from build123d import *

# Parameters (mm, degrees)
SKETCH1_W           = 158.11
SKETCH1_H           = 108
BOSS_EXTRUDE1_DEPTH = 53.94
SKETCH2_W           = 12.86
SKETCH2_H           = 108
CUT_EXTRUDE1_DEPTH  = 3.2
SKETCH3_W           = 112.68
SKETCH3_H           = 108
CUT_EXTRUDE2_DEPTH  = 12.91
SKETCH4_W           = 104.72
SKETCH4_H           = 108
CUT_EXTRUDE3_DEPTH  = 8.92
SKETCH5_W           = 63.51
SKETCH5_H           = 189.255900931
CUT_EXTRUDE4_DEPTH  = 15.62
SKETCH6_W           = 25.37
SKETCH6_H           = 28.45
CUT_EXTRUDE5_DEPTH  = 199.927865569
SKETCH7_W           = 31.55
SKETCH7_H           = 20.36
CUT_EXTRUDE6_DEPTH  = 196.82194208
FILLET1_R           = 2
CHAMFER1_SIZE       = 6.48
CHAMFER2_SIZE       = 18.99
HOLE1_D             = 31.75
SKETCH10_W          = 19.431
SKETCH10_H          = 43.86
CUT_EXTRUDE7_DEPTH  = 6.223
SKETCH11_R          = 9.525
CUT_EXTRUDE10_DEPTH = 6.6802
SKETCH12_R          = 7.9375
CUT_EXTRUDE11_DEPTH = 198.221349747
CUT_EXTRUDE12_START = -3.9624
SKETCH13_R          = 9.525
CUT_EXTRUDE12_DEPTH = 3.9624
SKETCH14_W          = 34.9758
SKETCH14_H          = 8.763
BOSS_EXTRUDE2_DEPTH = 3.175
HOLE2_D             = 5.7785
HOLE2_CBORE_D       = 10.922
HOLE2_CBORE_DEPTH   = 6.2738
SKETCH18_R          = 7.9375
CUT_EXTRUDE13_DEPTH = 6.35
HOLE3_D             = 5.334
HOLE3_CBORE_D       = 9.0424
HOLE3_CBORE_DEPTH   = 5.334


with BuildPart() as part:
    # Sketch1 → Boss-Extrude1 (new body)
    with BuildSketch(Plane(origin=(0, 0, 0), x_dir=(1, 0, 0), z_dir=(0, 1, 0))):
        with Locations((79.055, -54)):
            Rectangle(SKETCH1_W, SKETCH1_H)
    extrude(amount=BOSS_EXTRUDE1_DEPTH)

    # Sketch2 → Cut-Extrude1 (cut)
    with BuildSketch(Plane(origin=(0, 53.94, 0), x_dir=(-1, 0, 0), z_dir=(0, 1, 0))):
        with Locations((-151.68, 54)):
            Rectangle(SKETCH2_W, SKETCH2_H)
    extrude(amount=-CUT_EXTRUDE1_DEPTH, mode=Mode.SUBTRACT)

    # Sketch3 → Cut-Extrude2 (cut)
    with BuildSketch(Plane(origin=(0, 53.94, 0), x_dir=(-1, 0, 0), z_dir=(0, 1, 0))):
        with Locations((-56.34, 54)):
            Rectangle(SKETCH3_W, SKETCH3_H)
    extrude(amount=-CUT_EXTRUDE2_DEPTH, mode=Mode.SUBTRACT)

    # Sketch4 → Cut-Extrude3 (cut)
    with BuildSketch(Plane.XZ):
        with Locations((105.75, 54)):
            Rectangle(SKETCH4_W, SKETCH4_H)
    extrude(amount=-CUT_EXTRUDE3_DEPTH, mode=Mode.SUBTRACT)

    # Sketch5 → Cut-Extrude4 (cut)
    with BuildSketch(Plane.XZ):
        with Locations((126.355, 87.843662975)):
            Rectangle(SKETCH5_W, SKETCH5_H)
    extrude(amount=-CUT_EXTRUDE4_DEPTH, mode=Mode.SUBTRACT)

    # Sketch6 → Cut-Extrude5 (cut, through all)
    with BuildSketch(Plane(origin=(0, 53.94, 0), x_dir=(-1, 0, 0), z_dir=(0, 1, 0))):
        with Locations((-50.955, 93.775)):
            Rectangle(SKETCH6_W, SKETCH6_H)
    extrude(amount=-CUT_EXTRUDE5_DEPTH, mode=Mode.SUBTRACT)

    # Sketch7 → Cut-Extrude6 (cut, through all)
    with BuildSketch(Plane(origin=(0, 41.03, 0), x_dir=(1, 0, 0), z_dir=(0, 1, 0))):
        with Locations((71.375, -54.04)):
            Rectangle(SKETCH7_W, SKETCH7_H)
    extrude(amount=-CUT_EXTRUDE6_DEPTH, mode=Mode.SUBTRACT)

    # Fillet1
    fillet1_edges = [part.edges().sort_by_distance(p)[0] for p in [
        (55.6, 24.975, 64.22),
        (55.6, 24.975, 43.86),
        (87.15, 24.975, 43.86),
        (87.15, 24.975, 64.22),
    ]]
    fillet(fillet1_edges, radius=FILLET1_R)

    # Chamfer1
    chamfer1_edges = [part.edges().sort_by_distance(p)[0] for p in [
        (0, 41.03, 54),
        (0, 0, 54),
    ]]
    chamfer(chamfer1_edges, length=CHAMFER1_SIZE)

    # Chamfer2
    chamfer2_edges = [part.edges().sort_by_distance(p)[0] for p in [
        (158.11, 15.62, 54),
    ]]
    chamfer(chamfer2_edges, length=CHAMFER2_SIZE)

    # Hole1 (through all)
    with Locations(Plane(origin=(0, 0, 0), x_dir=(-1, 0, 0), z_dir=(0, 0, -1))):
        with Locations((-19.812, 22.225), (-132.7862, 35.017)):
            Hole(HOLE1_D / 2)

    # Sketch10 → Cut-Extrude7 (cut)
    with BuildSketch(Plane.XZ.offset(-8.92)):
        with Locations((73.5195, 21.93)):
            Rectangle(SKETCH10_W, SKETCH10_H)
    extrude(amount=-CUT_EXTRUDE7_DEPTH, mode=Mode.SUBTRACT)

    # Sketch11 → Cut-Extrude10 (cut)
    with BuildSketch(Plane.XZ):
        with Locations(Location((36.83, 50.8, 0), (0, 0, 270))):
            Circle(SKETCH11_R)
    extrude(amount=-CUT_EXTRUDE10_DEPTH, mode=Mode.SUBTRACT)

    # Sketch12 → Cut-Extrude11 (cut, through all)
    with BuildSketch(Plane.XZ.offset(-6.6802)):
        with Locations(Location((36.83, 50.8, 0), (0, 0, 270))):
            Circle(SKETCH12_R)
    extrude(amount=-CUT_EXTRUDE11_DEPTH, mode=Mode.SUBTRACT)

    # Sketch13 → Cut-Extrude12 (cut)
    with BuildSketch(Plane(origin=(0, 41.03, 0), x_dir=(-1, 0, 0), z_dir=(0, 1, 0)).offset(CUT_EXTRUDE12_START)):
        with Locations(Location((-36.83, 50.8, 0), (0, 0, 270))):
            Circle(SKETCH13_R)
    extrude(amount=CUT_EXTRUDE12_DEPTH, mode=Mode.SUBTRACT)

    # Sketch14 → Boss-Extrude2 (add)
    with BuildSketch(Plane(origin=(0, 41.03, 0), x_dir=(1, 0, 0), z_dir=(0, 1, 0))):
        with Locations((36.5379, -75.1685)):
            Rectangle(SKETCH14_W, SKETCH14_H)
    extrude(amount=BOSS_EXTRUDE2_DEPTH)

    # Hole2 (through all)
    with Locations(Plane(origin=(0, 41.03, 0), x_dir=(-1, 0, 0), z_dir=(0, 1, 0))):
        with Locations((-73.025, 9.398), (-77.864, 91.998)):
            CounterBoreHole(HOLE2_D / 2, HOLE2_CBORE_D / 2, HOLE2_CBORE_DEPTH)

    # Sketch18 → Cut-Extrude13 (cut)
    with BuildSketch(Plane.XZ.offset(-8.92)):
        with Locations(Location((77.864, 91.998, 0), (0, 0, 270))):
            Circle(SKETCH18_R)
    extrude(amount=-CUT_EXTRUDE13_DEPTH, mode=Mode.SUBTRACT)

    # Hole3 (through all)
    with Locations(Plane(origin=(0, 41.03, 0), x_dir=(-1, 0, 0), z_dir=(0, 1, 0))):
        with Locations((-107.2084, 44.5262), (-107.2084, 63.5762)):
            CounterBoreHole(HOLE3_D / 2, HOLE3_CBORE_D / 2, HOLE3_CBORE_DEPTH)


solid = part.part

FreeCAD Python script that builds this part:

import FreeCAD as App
import Part
import Sketcher

V = App.Vector
Q = App.Units.Quantity


def edges_at(feature, points):
    """Names of the edges that pass closest to the given points."""
    edges = feature.Shape.Edges
    near = lambda p: min(range(len(edges)), key=lambda i: edges[i].distToShape(Part.Vertex(*p))[0])
    return sorted({f"Edge{near(p) + 1}" for p in points})


def add_polygon(sketch, points):
    """Adds a closed chain of lines whose ends are joined by coincident constraints."""
    first, n = sketch.GeometryCount, len(points)
    for a, b in zip(points, points[1:] + points[:1]):
        sketch.addGeometry(Part.LineSegment(App.Vector(*a, 0), App.Vector(*b, 0)), False)
    for i in range(n):
        sketch.addConstraint(Sketcher.Constraint("Coincident", first + i, 2, first + (i + 1) % n, 1))

doc = App.newDocument("Part")
params = doc.addObject("Spreadsheet::Sheet", "Params")
for row, (alias, value) in enumerate([
    ("pad1_length", "53.94 mm"),
    ("pocket1_length", "3.2 mm"),
    ("pocket2_length", "12.91 mm"),
    ("pocket3_length", "8.92 mm"),
    ("pocket4_length", "15.62 mm"),
    ("fillet_radius", "2 mm"),
    ("chamfer_size", "6.48 mm"),
    ("chamfer2_size", "18.99 mm"),
    ("sketch8_diameter", "1.25 in"),
    ("hole_diameter", "1.25 in"),
    ("sketch9_width", "0.765 in"),
    ("pocket7_length", "0.245 in"),
    ("sketch10_diameter", "0.75 in"),
    ("pocket8_length", "0.263 in"),
    ("sketch11_diameter", "0.625 in"),
    ("sketch12_diameter", "0.75 in"),
    ("pocket10_length", "0.156 in"),
    ("sketch13_width", "1.377 in"),
    ("sketch13_height", "0.345 in"),
    ("pad2_length", "0.125 in"),
    ("hole2_diameter", "0.2275 in"),
    ("hole2_cbore_diameter", "0.43 in"),
    ("hole2_cbore_depth", "0.247 in"),
    ("sketch15_diameter", "0.625 in"),
    ("pocket11_length", "0.25 in"),
    ("sketch16_diameter", "0.21 in"),
    ("hole3_diameter", "0.21 in"),
    ("hole3_cbore_diameter", "0.356 in"),
    ("hole3_cbore_depth", "0.21 in"),
], start=1):
    params.set(f"A{row}", alias)
    params.set(f"B{row}", "=" + value)
    params.setAlias(f"B{row}", alias)

body = doc.addObject("PartDesign::Body", "Body")

sketch1 = body.newObject("Sketcher::SketchObject", "Sketch")
sketch1.AttachmentSupport = (doc.getObject("XZ_Plane"), [""])
sketch1.MapMode = "FlatFace"
add_polygon(sketch1, [(0, 0), (0, 108), (158.11, 108), (158.11, 0)])
sketch1.addConstraint(Sketcher.Constraint("Vertical", 0))
sketch1.addConstraint(Sketcher.Constraint("Horizontal", 1))
sketch1.addConstraint(Sketcher.Constraint("Vertical", 2))
sketch1.addConstraint(Sketcher.Constraint("Horizontal", 3))
sketch1.addConstraint(Sketcher.Constraint("Coincident", 3, 2, -1, 1))
sketch1.addConstraint(Sketcher.Constraint("DistanceX", 1, 1, 1, 2, 158.11))
sketch1.addConstraint(Sketcher.Constraint("DistanceY", 0, 1, 0, 2, 108.0))
pad1 = body.newObject("PartDesign::Pad", "Pad")
pad1.Profile = sketch1
pad1.setExpression("Length", "Params.pad1_length")
pad1.Reversed = True

sketch2 = body.newObject("Sketcher::SketchObject", "Sketch001")
sketch2.AttachmentSupport = (doc.getObject("XZ_Plane"), [""])
sketch2.MapMode = "FlatFace"
sketch2.AttachmentOffset = App.Placement(V(0, 0, -53.94), App.Rotation())
add_polygon(sketch2, [(158.11, 108), (158.11, 0), (145.25, 0), (145.25, 108)])
sketch2.addConstraint(Sketcher.Constraint("Vertical", 0))
sketch2.addConstraint(Sketcher.Constraint("Horizontal", 1))
sketch2.addConstraint(Sketcher.Constraint("Vertical", 2))
sketch2.addConstraint(Sketcher.Constraint("Horizontal", 3))
sketch2.addConstraint(Sketcher.Constraint("PointOnObject", 0, 2, -1))
sketch2.addConstraint(Sketcher.Constraint("DistanceX", 1, 2, 1, 1, 12.86))
sketch2.addConstraint(Sketcher.Constraint("DistanceY", 0, 2, 0, 1, 108.0))
sketch2.addConstraint(Sketcher.Constraint("DistanceX", -1, 1, 0, 2, 158.11))
pocket1 = body.newObject("PartDesign::Pocket", "Pocket")
pocket1.Profile = sketch2
pocket1.setExpression("Length", "Params.pocket1_length")
pocket1.Reversed = True

sketch3 = body.newObject("Sketcher::SketchObject", "Sketch002")
sketch3.AttachmentSupport = (doc.getObject("XZ_Plane"), [""])
sketch3.MapMode = "FlatFace"
sketch3.AttachmentOffset = App.Placement(V(0, 0, -53.94), App.Rotation())
add_polygon(sketch3, [(112.68, 108), (112.68, 0), (0, 0), (0, 108)])
sketch3.addConstraint(Sketcher.Constraint("Vertical", 0))
sketch3.addConstraint(Sketcher.Constraint("Horizontal", 1))
sketch3.addConstraint(Sketcher.Constraint("Vertical", 2))
sketch3.addConstraint(Sketcher.Constraint("Horizontal", 3))
sketch3.addConstraint(Sketcher.Constraint("Coincident", 1, 2, -1, 1))
sketch3.addConstraint(Sketcher.Constraint("DistanceX", 1, 2, 1, 1, 112.68))
sketch3.addConstraint(Sketcher.Constraint("DistanceY", 0, 2, 0, 1, 108.0))
pocket2 = body.newObject("PartDesign::Pocket", "Pocket001")
pocket2.Profile = sketch3
pocket2.setExpression("Length", "Params.pocket2_length")
pocket2.Reversed = True

sketch4 = body.newObject("Sketcher::SketchObject", "Sketch003")
sketch4.AttachmentSupport = (doc.getObject("XZ_Plane"), [""])
sketch4.MapMode = "FlatFace"
add_polygon(sketch4, [(53.39, 108), (53.39, 0), (158.11, 0), (158.11, 108)])
sketch4.addConstraint(Sketcher.Constraint("Vertical", 0))
sketch4.addConstraint(Sketcher.Constraint("Horizontal", 1))
sketch4.addConstraint(Sketcher.Constraint("Vertical", 2))
sketch4.addConstraint(Sketcher.Constraint("Horizontal", 3))
sketch4.addConstraint(Sketcher.Constraint("PointOnObject", 0, 2, -1))
sketch4.addConstraint(Sketcher.Constraint("DistanceX", 1, 1, 1, 2, 104.72))
sketch4.addConstraint(Sketcher.Constraint("DistanceY", 0, 2, 0, 1, 108.0))
sketch4.addConstraint(Sketcher.Constraint("DistanceX", -1, 1, 0, 2, 53.39))
pocket3 = body.newObject("PartDesign::Pocket", "Pocket002")
pocket3.Profile = sketch4
pocket3.setExpression("Length", "Params.pocket3_length")

sketch5 = body.newObject("Sketcher::SketchObject", "Sketch004")
sketch5.AttachmentSupport = (doc.getObject("XZ_Plane"), [""])
sketch5.MapMode = "FlatFace"
add_polygon(sketch5, [(94.6, 182.471613), (94.6, -6.784287), (158.11, -6.784287), (158.11, 182.471613)])
sketch5.addConstraint(Sketcher.Constraint("Vertical", 0))
sketch5.addConstraint(Sketcher.Constraint("Horizontal", 1))
sketch5.addConstraint(Sketcher.Constraint("Vertical", 2))
sketch5.addConstraint(Sketcher.Constraint("Horizontal", 3))
sketch5.addConstraint(Sketcher.Constraint("DistanceX", 1, 1, 1, 2, 63.51))
sketch5.addConstraint(Sketcher.Constraint("DistanceY", 0, 2, 0, 1, 189.255901))
sketch5.addConstraint(Sketcher.Constraint("DistanceX", -1, 1, 0, 2, 94.6))
sketch5.addConstraint(Sketcher.Constraint("DistanceY", 0, 2, -1, 1, 6.784287))
pocket4 = body.newObject("PartDesign::Pocket", "Pocket003")
pocket4.Profile = sketch5
pocket4.setExpression("Length", "Params.pocket4_length")

sketch6 = body.newObject("Sketcher::SketchObject", "Sketch005")
sketch6.AttachmentSupport = (doc.getObject("XZ_Plane"), [""])
sketch6.MapMode = "FlatFace"
sketch6.AttachmentOffset = App.Placement(V(0, 0, -53.94), App.Rotation())
add_polygon(sketch6, [(63.64, 108), (63.64, 79.55), (38.27, 79.55), (38.27, 108)])
sketch6.addConstraint(Sketcher.Constraint("Vertical", 0))
sketch6.addConstraint(Sketcher.Constraint("Horizontal", 1))
sketch6.addConstraint(Sketcher.Constraint("Vertical", 2))
sketch6.addConstraint(Sketcher.Constraint("Horizontal", 3))
sketch6.addConstraint(Sketcher.Constraint("DistanceX", 1, 2, 1, 1, 25.37))
sketch6.addConstraint(Sketcher.Constraint("DistanceY", 0, 2, 0, 1, 28.45))
sketch6.addConstraint(Sketcher.Constraint("DistanceX", -1, 1, 0, 2, 63.64))
sketch6.addConstraint(Sketcher.Constraint("DistanceY", -1, 1, 0, 2, 79.55))
pocket5 = body.newObject("PartDesign::Pocket", "Pocket004")
pocket5.Profile = sketch6
pocket5.Type = "ThroughAll"
pocket5.Reversed = True

sketch7 = body.newObject("Sketcher::SketchObject", "Sketch006")
sketch7.AttachmentSupport = (doc.getObject("XZ_Plane"), [""])
sketch7.MapMode = "FlatFace"
sketch7.AttachmentOffset = App.Placement(V(0, 0, -41.03), App.Rotation())
add_polygon(sketch7, [(55.6, 43.86), (55.6, 64.22), (87.15, 64.22), (87.15, 43.86)])
sketch7.addConstraint(Sketcher.Constraint("Vertical", 0))
sketch7.addConstraint(Sketcher.Constraint("Horizontal", 1))
sketch7.addConstraint(Sketcher.Constraint("Vertical", 2))
sketch7.addConstraint(Sketcher.Constraint("Horizontal", 3))
sketch7.addConstraint(Sketcher.Constraint("DistanceX", 1, 1, 1, 2, 31.55))
sketch7.addConstraint(Sketcher.Constraint("DistanceY", 0, 1, 0, 2, 20.36))
sketch7.addConstraint(Sketcher.Constraint("DistanceX", -1, 1, 0, 2, 55.6))
sketch7.addConstraint(Sketcher.Constraint("DistanceY", -1, 1, 0, 2, 64.22))
pocket6 = body.newObject("PartDesign::Pocket", "Pocket005")
pocket6.Profile = sketch7
pocket6.Type = "ThroughAll"
pocket6.Reversed = True
doc.recompute()

fillet = body.newObject("PartDesign::Fillet", "Fillet")
fillet.Base = (pocket6, edges_at(pocket6, [
    (55.6, 24.975, 64.22),
    (55.6, 24.975, 43.86),
    (87.15, 24.975, 43.86),
    (87.15, 24.975, 64.22),
]))
fillet.setExpression("Radius", "Params.fillet_radius")
doc.recompute()

chamfer = body.newObject("PartDesign::Chamfer", "Chamfer")
chamfer.Base = (fillet, edges_at(fillet, [(0, 41.03, 54), (0, 0, 54)]))
chamfer.setExpression("Size", "Params.chamfer_size")
doc.recompute()

chamfer2 = body.newObject("PartDesign::Chamfer", "Chamfer001")
chamfer2.Base = (chamfer, edges_at(chamfer, [(158.11, 15.62, 54)]))
chamfer2.setExpression("Size", "Params.chamfer2_size")

sketch8 = body.newObject("Sketcher::SketchObject", "Sketch007")
sketch8.AttachmentSupport = (doc.getObject("XY_Plane"), [""])
sketch8.MapMode = "FlatFace"
sketch8.addGeometry(Part.Circle(V(19.812, 22.225, 0), V(0, 0, 1), 15.875), False)
sketch8.addGeometry(Part.Circle(V(132.7862, 35.017, 0), V(0, 0, 1), 15.875), False)
sketch8.addConstraint(Sketcher.Constraint("Equal", 0, 1))
sketch8.addConstraint(Sketcher.Constraint("Diameter", 0, Q("1.25 in")))
sketch8.addConstraint(Sketcher.Constraint("DistanceX", -1, 1, 0, 3, Q("0.78 in")))
sketch8.addConstraint(Sketcher.Constraint("DistanceY", -1, 1, 0, 3, Q("0.875 in")))
sketch8.addConstraint(Sketcher.Constraint("DistanceX", -1, 1, 1, 3, 132.7862))
sketch8.addConstraint(Sketcher.Constraint("DistanceY", -1, 1, 1, 3, 35.017))
sketch8.setExpression("Constraints[1]", "Params.sketch8_diameter")
doc.recompute()
hole = body.newObject("PartDesign::Hole", "Hole")
hole.Profile = sketch8
hole.ThreadType = "None"
hole.setExpression("Diameter", "Params.hole_diameter")
hole.DepthType = "ThroughAll"
hole.Reversed = True

sketch9 = body.newObject("Sketcher::SketchObject", "Sketch008")
sketch9.AttachmentSupport = (doc.getObject("XZ_Plane"), [""])
sketch9.MapMode = "FlatFace"
sketch9.AttachmentOffset = App.Placement(V(0, 0, -8.92), App.Rotation())
add_polygon(sketch9, [(63.804, 43.86), (63.804, 0), (83.235, 0), (83.235, 43.86)])
sketch9.addConstraint(Sketcher.Constraint("Vertical", 0))
sketch9.addConstraint(Sketcher.Constraint("Horizontal", 1))
sketch9.addConstraint(Sketcher.Constraint("Vertical", 2))
sketch9.addConstraint(Sketcher.Constraint("Horizontal", 3))
sketch9.addConstraint(Sketcher.Constraint("PointOnObject", 0, 2, -1))
sketch9.addConstraint(Sketcher.Constraint("DistanceX", 1, 1, 1, 2, Q("0.765 in")))
sketch9.addConstraint(Sketcher.Constraint("DistanceY", 0, 2, 0, 1, 43.86))
sketch9.addConstraint(Sketcher.Constraint("DistanceX", -1, 1, 0, 2, 63.804))
sketch9.setExpression("Constraints[9]", "Params.sketch9_width")
pocket7 = body.newObject("PartDesign::Pocket", "Pocket006")
pocket7.Profile = sketch9
pocket7.setExpression("Length", "Params.pocket7_length")

sketch10 = body.newObject("Sketcher::SketchObject", "Sketch009")
sketch10.AttachmentSupport = (doc.getObject("XZ_Plane"), [""])
sketch10.MapMode = "FlatFace"
sketch10.addGeometry(Part.Circle(V(36.83, 50.8, 0), V(0, 0, 1), 9.525), False)
sketch10.addConstraint(Sketcher.Constraint("Diameter", 0, Q("0.75 in")))
sketch10.addConstraint(Sketcher.Constraint("DistanceY", -1, 1, 0, 3, Q("2 in")))
sketch10.addConstraint(Sketcher.Constraint("DistanceX", -1, 1, 0, 3, Q("1.45 in")))
sketch10.setExpression("Constraints[0]", "Params.sketch10_diameter")
pocket8 = body.newObject("PartDesign::Pocket", "Pocket007")
pocket8.Profile = sketch10
pocket8.setExpression("Length", "Params.pocket8_length")

sketch11 = body.newObject("Sketcher::SketchObject", "Sketch010")
sketch11.AttachmentSupport = (doc.getObject("XZ_Plane"), [""])
sketch11.MapMode = "FlatFace"
sketch11.AttachmentOffset = App.Placement(V(0, 0, -0.263 * 25.4), App.Rotation())
sketch11.addGeometry(Part.Circle(V(36.83, 50.8, 0), V(0, 0, 1), 7.9375), False)
sketch11.addConstraint(Sketcher.Constraint("Diameter", 0, Q("0.625 in")))
sketch11.addConstraint(Sketcher.Constraint("DistanceY", -1, 1, 0, 3, Q("2 in")))
sketch11.addConstraint(Sketcher.Constraint("DistanceX", -1, 1, 0, 3, Q("1.45 in")))
sketch11.setExpression("Constraints[0]", "Params.sketch11_diameter")
pocket9 = body.newObject("PartDesign::Pocket", "Pocket008")
pocket9.Profile = sketch11
pocket9.Type = "ThroughAll"

sketch12 = body.newObject("Sketcher::SketchObject", "Sketch011")
sketch12.AttachmentSupport = (doc.getObject("XZ_Plane"), [""])
sketch12.MapMode = "FlatFace"
sketch12.AttachmentOffset = App.Placement(V(0, 0, -37.0676), App.Rotation())
sketch12.addGeometry(Part.Circle(V(36.83, 50.8, 0), V(0, 0, 1), 9.525), False)
sketch12.addConstraint(Sketcher.Constraint("Diameter", 0, Q("0.75 in")))
sketch12.addConstraint(Sketcher.Constraint("DistanceY", -1, 1, 0, 3, Q("2 in")))
sketch12.addConstraint(Sketcher.Constraint("DistanceX", -1, 1, 0, 3, Q("1.45 in")))
sketch12.setExpression("Constraints[0]", "Params.sketch12_diameter")
pocket10 = body.newObject("PartDesign::Pocket", "Pocket009")
pocket10.Profile = sketch12
pocket10.setExpression("Length", "Params.pocket10_length")

sketch13 = body.newObject("Sketcher::SketchObject", "Sketch012")
sketch13.AttachmentSupport = (doc.getObject("XZ_Plane"), [""])
sketch13.MapMode = "FlatFace"
sketch13.AttachmentOffset = App.Placement(V(0, 0, -41.03), App.Rotation())
add_polygon(sketch13, [(19.05, 70.787), (19.05, 79.55), (54.0258, 79.55), (54.0258, 70.787)])
sketch13.addConstraint(Sketcher.Constraint("Vertical", 0))
sketch13.addConstraint(Sketcher.Constraint("Horizontal", 1))
sketch13.addConstraint(Sketcher.Constraint("Vertical", 2))
sketch13.addConstraint(Sketcher.Constraint("Horizontal", 3))
sketch13.addConstraint(Sketcher.Constraint("DistanceX", 1, 1, 1, 2, Q("1.377 in")))
sketch13.addConstraint(Sketcher.Constraint("DistanceY", 0, 1, 0, 2, Q("0.345 in")))
sketch13.addConstraint(Sketcher.Constraint("DistanceX", -1, 1, 0, 2, Q("0.75 in")))
sketch13.addConstraint(Sketcher.Constraint("DistanceY", -1, 1, 0, 2, 79.55))
sketch13.setExpression("Constraints[8]", "Params.sketch13_width")
sketch13.setExpression("Constraints[9]", "Params.sketch13_height")
pad2 = body.newObject("PartDesign::Pad", "Pad001")
pad2.Profile = sketch13
pad2.setExpression("Length", "Params.pad2_length")
pad2.Reversed = True

sketch14 = body.newObject("Sketcher::SketchObject", "Sketch013")
sketch14.AttachmentSupport = (doc.getObject("XZ_Plane"), [""])
sketch14.MapMode = "FlatFace"
sketch14.AttachmentOffset = App.Placement(V(0, 0, -41.03), App.Rotation())
sketch14.addGeometry(Part.Circle(V(73.025, 9.398, 0), V(0, 0, 1), 2.88925), False)
sketch14.addGeometry(Part.Circle(V(77.864, 91.998, 0), V(0, 0, 1), 2.88925), False)
sketch14.addConstraint(Sketcher.Constraint("Equal", 0, 1))
sketch14.addConstraint(Sketcher.Constraint("Diameter", 0, Q("0.2275 in")))
sketch14.addConstraint(Sketcher.Constraint("DistanceY", -1, 1, 0, 3, Q("0.37 in")))
sketch14.addConstraint(Sketcher.Constraint("DistanceX", -1, 1, 0, 3, Q("2.875 in")))
sketch14.addConstraint(Sketcher.Constraint("DistanceX", -1, 1, 1, 3, 77.864))
sketch14.addConstraint(Sketcher.Constraint("DistanceY", -1, 1, 1, 3, 91.998))
doc.recompute()
hole2 = body.newObject("PartDesign::Hole", "Hole001")
hole2.Profile = sketch14
hole2.ThreadType = "None"
hole2.setExpression("Diameter", "Params.hole2_diameter")
hole2.DepthType = "ThroughAll"
hole2.HoleCutType = "Counterbore"
hole2.setExpression("HoleCutDiameter", "Params.hole2_cbore_diameter")
hole2.setExpression("HoleCutDepth", "Params.hole2_cbore_depth")
hole2.Reversed = True

sketch15 = body.newObject("Sketcher::SketchObject", "Sketch014")
sketch15.AttachmentSupport = (doc.getObject("XZ_Plane"), [""])
sketch15.MapMode = "FlatFace"
sketch15.AttachmentOffset = App.Placement(V(0, 0, -8.92), App.Rotation())
sketch15.addGeometry(Part.Circle(V(77.864, 91.998, 0), V(0, 0, 1), 7.9375), False)
sketch15.addConstraint(Sketcher.Constraint("Diameter", 0, Q("0.625 in")))
sketch15.addConstraint(Sketcher.Constraint("DistanceX", -1, 1, 0, 3, 77.864))
sketch15.addConstraint(Sketcher.Constraint("DistanceY", -1, 1, 0, 3, 91.998))
sketch15.setExpression("Constraints[0]", "Params.sketch15_diameter")
pocket11 = body.newObject("PartDesign::Pocket", "Pocket010")
pocket11.Profile = sketch15
pocket11.setExpression("Length", "Params.pocket11_length")

sketch16 = body.newObject("Sketcher::SketchObject", "Sketch015")
sketch16.AttachmentSupport = (doc.getObject("XZ_Plane"), [""])
sketch16.MapMode = "FlatFace"
sketch16.AttachmentOffset = App.Placement(V(0, 0, -41.03), App.Rotation())
sketch16.addGeometry(Part.Circle(V(107.2084, 44.5262, 0), V(0, 0, 1), 2.667), False)
sketch16.addGeometry(Part.Circle(V(107.2084, 63.5762, 0), V(0, 0, 1), 2.667), False)
sketch16.addConstraint(Sketcher.Constraint("Equal", 0, 1))
sketch16.addConstraint(Sketcher.Constraint("Vertical", 0, 3, 1, 3))
sketch16.addConstraint(Sketcher.Constraint("Diameter", 0, Q("0.21 in")))
sketch16.addConstraint(Sketcher.Constraint("DistanceY", 0, 3, 1, 3, Q("0.75 in")))
sketch16.addConstraint(Sketcher.Constraint("DistanceY", -1, 1, 0, 3, Q("1.753 in")))
sketch16.addConstraint(Sketcher.Constraint("DistanceX", -1, 1, 0, 3, 107.2084))
sketch16.setExpression("Constraints[2]", "Params.sketch16_diameter")
doc.recompute()
hole3 = body.newObject("PartDesign::Hole", "Hole002")
hole3.Profile = sketch16
hole3.ThreadType = "None"
hole3.setExpression("Diameter", "Params.hole3_diameter")
hole3.DepthType = "ThroughAll"
hole3.HoleCutType = "Counterbore"
hole3.setExpression("HoleCutDiameter", "Params.hole3_cbore_diameter")
hole3.setExpression("HoleCutDepth", "Params.hole3_cbore_depth")
hole3.Reversed = True

doc.recompute()
